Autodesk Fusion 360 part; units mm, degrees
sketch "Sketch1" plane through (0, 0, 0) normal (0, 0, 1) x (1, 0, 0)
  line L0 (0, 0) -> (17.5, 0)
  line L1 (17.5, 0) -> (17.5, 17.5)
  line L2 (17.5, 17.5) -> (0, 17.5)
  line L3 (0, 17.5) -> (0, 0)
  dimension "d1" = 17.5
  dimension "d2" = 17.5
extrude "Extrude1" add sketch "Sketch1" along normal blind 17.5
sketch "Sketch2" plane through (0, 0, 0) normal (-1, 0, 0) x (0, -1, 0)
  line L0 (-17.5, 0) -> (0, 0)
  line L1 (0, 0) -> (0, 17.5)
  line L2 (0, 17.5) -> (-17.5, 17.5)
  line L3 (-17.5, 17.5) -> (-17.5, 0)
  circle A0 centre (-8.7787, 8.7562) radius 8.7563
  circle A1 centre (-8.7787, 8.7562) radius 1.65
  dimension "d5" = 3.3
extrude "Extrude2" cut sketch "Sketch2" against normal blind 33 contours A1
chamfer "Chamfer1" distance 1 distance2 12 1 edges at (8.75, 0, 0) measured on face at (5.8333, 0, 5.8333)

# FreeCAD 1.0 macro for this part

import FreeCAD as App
import Part
import Sketcher

V = App.Vector


def edges_at(feature, points):
    """Names of the edges that pass closest to the given points."""
    edges = feature.Shape.Edges
    near = lambda p: min(range(len(edges)), key=lambda i: edges[i].distToShape(Part.Vertex(*p))[0])
    return sorted({f"Edge{near(p) + 1}" for p in points})


def add_polygon(sketch, points):
    """Adds a closed chain of lines whose ends are joined by coincident constraints."""
    first, n = sketch.GeometryCount, len(points)
    for a, b in zip(points, points[1:] + points[:1]):
        sketch.addGeometry(Part.LineSegment(App.Vector(*a, 0), App.Vector(*b, 0)), False)
    for i in range(n):
        sketch.addConstraint(Sketcher.Constraint("Coincident", first + i, 2, first + (i + 1) % n, 1))

doc = App.newDocument("Part")
params = doc.addObject("Spreadsheet::Sheet", "Params")
for row, (alias, value) in enumerate([
    ("sketch1_width", "17.5 mm"),
    ("pad1_length", "17.5 mm"),
    ("sketch2_diameter", "3.3 mm"),
    ("pocket1_length", "33 mm"),
    ("chamfer_size", "1 mm"),
    ("chamfer_size2", "12 mm"),
], start=1):
    params.set(f"A{row}", alias)
    params.set(f"B{row}", "=" + value)
    params.setAlias(f"B{row}", alias)

body = doc.addObject("PartDesign::Body", "Body")

sketch1 = body.newObject("Sketcher::SketchObject", "Sketch")
sketch1.AttachmentSupport = (doc.getObject("XY_Plane"), [""])
sketch1.MapMode = "FlatFace"
add_polygon(sketch1, [(0, 18), (0, 0), (18, 0), (18, 18)])
sketch1.addConstraint([
    Sketcher.Constraint("Vertical", 0),
    Sketcher.Constraint("Horizontal", 1),
    Sketcher.Constraint("Vertical", 2),
    Sketcher.Constraint("Horizontal", 3),
    Sketcher.Constraint("Coincident", 0, 2, -1, 1),
    Sketcher.Constraint("Equal", 3, 0),
    Sketcher.Constraint("DistanceX", 1, 1, 1, 2, 17.5),
])
sketch1.setExpression("Constraints[10]", "Params.sketch1_width")
pad1 = body.newObject("PartDesign::Pad", "Pad")
pad1.Profile = sketch1
pad1.setExpression("Length", "Params.pad1_length")

sketch2 = body.newObject("Sketcher::SketchObject", "Sketch001")
sketch2.AttachmentSupport = (doc.getObject("YZ_Plane"), [""])
sketch2.MapMode = "FlatFace"
sketch2.addGeometry(Part.Circle(V(8.8, 8.8, 0), V(0, 0, 1), 1.6), False)
sketch2.addConstraint([
    Sketcher.Constraint("Diameter", 0, 3.3),
    Sketcher.Constraint("DistanceX", -1, 1, 0, 3, 8.7787),
    Sketcher.Constraint("DistanceY", -1, 1, 0, 3, 8.7562),
])
sketch2.setExpression("Constraints[0]", "Params.sketch2_diameter")
pocket1 = body.newObject("PartDesign::Pocket", "Pocket")
pocket1.Profile = sketch2
pocket1.setExpression("Length", "Params.pocket1_length")
pocket1.Reversed = True
doc.recompute()

chamfer = body.newObject("PartDesign::Chamfer", "Chamfer")
chamfer.Base = (pocket1, edges_at(pocket1, [(8.75, 0, 0)]))
chamfer.ChamferType = "Two distances"
chamfer.setExpression("Size", "Params.chamfer_size")
chamfer.setExpression("Size2", "Params.chamfer_size2")
chamfer.FlipDirection = True

doc.recompute()
